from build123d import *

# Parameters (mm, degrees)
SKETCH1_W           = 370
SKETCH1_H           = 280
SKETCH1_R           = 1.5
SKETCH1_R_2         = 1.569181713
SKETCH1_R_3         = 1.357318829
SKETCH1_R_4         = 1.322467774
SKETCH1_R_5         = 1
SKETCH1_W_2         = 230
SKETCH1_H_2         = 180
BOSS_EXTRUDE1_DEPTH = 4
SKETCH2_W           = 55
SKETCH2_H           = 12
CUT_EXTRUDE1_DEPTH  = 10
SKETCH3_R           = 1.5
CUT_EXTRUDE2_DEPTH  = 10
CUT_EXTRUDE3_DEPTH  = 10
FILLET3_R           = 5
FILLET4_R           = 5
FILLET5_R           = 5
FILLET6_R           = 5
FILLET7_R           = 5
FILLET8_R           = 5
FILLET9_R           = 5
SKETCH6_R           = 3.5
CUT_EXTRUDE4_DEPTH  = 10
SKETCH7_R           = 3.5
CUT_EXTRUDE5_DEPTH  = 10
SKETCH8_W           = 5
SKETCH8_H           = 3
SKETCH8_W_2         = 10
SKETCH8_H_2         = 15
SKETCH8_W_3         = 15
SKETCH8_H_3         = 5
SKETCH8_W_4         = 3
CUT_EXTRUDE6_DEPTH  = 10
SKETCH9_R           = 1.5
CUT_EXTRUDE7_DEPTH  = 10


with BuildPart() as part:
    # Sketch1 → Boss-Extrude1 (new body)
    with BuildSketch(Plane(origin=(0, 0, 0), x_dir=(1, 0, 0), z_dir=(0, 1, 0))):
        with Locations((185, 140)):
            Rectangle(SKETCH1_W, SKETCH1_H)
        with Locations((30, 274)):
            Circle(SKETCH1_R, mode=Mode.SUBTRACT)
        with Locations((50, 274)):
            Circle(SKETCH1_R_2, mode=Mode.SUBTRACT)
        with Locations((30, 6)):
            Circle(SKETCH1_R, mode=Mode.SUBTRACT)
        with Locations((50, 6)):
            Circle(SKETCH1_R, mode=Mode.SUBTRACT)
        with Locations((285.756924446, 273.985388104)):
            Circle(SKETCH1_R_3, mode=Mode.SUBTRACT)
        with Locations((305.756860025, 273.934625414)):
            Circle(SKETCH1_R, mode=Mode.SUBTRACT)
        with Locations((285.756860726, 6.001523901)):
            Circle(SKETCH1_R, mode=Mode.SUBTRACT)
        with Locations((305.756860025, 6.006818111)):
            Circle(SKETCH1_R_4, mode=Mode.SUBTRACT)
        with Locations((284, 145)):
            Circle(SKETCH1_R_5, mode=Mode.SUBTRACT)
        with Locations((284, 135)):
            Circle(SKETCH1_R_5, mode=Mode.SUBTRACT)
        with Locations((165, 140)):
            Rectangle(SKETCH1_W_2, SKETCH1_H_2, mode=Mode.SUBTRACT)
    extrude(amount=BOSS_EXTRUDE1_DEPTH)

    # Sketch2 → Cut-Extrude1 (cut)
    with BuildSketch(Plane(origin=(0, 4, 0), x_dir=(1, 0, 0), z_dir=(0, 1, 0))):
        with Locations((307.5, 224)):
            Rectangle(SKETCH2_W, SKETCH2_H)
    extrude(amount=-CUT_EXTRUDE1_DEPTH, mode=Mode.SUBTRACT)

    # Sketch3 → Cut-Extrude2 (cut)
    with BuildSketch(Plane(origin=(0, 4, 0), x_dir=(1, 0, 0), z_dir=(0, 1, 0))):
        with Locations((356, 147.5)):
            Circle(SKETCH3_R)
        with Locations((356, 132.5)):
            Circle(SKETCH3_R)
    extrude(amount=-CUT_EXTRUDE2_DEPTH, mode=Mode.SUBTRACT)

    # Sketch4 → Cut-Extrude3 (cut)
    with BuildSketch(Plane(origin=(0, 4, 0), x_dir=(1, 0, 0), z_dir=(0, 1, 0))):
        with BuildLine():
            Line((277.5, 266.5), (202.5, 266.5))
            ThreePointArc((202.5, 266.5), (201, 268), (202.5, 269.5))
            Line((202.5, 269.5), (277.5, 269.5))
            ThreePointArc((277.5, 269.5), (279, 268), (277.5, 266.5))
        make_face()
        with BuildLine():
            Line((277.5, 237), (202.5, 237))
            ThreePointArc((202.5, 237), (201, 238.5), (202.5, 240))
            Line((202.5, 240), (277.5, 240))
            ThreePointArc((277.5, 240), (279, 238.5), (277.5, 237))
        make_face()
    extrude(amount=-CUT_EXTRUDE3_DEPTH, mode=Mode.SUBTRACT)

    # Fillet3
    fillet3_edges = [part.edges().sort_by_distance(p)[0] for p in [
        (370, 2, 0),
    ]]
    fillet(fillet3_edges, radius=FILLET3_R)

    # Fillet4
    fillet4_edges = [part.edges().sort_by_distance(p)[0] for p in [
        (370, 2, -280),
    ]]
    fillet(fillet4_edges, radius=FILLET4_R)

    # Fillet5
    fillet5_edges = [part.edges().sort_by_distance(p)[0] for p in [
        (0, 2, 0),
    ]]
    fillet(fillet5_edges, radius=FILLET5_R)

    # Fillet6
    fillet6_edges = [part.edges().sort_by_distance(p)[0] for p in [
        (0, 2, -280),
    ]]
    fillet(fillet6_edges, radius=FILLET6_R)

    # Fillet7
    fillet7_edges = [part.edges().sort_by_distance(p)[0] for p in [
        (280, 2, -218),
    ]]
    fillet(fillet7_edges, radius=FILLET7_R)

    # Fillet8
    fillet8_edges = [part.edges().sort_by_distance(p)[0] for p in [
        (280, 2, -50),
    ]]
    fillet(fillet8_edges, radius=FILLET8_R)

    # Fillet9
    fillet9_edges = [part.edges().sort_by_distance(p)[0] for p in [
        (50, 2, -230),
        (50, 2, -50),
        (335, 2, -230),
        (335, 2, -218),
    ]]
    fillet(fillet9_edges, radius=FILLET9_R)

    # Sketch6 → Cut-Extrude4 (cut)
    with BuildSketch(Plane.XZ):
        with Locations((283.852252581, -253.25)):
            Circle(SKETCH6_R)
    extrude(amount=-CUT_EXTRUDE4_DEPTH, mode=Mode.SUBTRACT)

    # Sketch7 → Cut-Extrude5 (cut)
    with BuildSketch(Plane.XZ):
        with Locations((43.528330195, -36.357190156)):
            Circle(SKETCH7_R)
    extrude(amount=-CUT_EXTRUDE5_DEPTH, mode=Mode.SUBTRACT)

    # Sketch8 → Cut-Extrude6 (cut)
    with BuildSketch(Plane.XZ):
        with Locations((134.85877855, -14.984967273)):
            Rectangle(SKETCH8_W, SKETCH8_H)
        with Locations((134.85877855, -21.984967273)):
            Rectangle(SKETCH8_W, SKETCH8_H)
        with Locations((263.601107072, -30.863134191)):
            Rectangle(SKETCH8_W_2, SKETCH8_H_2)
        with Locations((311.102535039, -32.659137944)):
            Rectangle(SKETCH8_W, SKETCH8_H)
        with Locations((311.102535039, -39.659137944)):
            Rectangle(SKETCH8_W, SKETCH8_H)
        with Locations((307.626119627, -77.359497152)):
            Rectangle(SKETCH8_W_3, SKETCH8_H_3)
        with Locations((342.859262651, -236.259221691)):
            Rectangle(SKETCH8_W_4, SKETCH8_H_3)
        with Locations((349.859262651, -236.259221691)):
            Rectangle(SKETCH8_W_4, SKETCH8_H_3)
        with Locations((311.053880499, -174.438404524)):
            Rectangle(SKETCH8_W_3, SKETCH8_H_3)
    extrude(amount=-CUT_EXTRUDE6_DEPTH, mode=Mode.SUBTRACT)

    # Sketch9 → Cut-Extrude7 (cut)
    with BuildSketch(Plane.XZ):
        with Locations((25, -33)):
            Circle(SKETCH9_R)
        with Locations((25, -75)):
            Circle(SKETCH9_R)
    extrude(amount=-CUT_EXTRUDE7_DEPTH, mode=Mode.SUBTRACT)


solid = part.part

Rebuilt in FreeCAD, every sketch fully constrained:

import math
import FreeCAD as App
import Part
import Sketcher
from FreeCAD import Vector
Q = App.Units.Quantity


def edges_at(feature, points):
    """Names of the edges that pass closest to the given points."""
    edges = feature.Shape.Edges
    near = lambda p: min(range(len(edges)), key=lambda i: edges[i].distToShape(Part.Vertex(*p))[0])
    return sorted({f"Edge{near(p) + 1}" for p in points})

doc = App.newDocument("Part")
params = doc.addObject("Spreadsheet::Sheet", "Params")
for row, (alias, value) in enumerate([
    ("sketch1_diameter", "3 mm"),
    ("sketch1_diameter2", "2 mm"),
    ("sketch1_width", "370 mm"),
    ("sketch1_width2", "230 mm"),
    ("sketch1_height", "280 mm"),
    ("pad1_length", "4 mm"),
    ("sketch2_width", "55 mm"),
    ("sketch2_height", "12 mm"),
    ("pocket1_length", "10 mm"),
    ("sketch3_diameter", "3 mm"),
    ("pocket2_length", "10 mm"),
    ("sketch4_radius", "1.5 mm"),
    ("sketch4_width", "75 mm"),
    ("pocket3_length", "10 mm"),
    ("fillet_radius", "5 mm"),
    ("fillet2_radius", "5 mm"),
    ("fillet3_radius", "5 mm"),
    ("fillet4_radius", "5 mm"),
    ("fillet5_radius", "5 mm"),
    ("fillet6_radius", "5 mm"),
    ("fillet7_radius", "5 mm"),
    ("sketch5_diameter", "7 mm"),
    ("pocket4_length", "10 mm"),
    ("sketch6_diameter", "7 mm"),
    ("pocket5_length", "10 mm"),
    ("sketch7_width", "5 mm"),
    ("sketch7_width2", "10 mm"),
    ("sketch7_width3", "15 mm"),
    ("sketch7_width4", "3 mm"),
    ("pocket6_length", "10 mm"),
    ("sketch8_diameter", "3 mm"),
    ("pocket7_length", "10 mm"),
], start=1):
    params.set(f"A{row}", alias)
    params.set(f"B{row}", "=" + value)
    params.setAlias(f"B{row}", alias)

body = doc.addObject("PartDesign::Body", "Body")

sketch1 = body.newObject("Sketcher::SketchObject", "Sketch")
sketch1.AttachmentSupport = (doc.getObject("XZ_Plane"), [""])
sketch1.MapMode = "FlatFace"
sketch1.addGeometry(Part.LineSegment(Vector(0, -280, 0), Vector(0, 0, 0)), False)
sketch1.addGeometry(Part.LineSegment(Vector(0, 0, 0), Vector(370, 0, 0)), False)
sketch1.addGeometry(Part.LineSegment(Vector(370, 0, 0), Vector(370, -280, 0)), False)
sketch1.addGeometry(Part.LineSegment(Vector(370, -280, 0), Vector(0, -280, 0)), False)
sketch1.addGeometry(Part.Circle(Vector(30, -6, 0), Vector(0, 0, 1), 1.5), False)
sketch1.addGeometry(Part.Circle(Vector(50, -6, 0), Vector(0, 0, 1), 1.5), False)
sketch1.addGeometry(Part.LineSegment(Vector(280, -50, 0), Vector(50, -50, 0)), False)
sketch1.addGeometry(Part.LineSegment(Vector(50, -50, 0), Vector(50, -230, 0)), False)
sketch1.addGeometry(Part.LineSegment(Vector(50, -230, 0), Vector(280, -230, 0)), False)
sketch1.addGeometry(Part.LineSegment(Vector(280, -230, 0), Vector(280, -50, 0)), False)
sketch1.addGeometry(Part.Circle(Vector(285.8, -6, 0), Vector(0, 0, 1), 1.5), False)
sketch1.addGeometry(Part.Circle(Vector(305.8, -6, 0), Vector(0, 0, 1), 1.3), False)
sketch1.addGeometry(Part.Circle(Vector(284, -135, 0), Vector(0, 0, 1), 1), False)
sketch1.addGeometry(Part.Circle(Vector(30, -274, 0), Vector(0, 0, 1), 1.5), False)
sketch1.addGeometry(Part.Circle(Vector(50, -274, 0), Vector(0, 0, 1), 1.6), False)
sketch1.addGeometry(Part.Circle(Vector(284, -145, 0), Vector(0, 0, 1), 1), False)
sketch1.addGeometry(Part.Circle(Vector(285.8, -274, 0), Vector(0, 0, 1), 1.4), False)
sketch1.addGeometry(Part.Circle(Vector(305.8, -273.9, 0), Vector(0, 0, 1), 1.5), False)
sketch1.addConstraint(Sketcher.Constraint("Coincident", 0, 2, 1, 1))
sketch1.addConstraint(Sketcher.Constraint("Coincident", 1, 2, 2, 1))
sketch1.addConstraint(Sketcher.Constraint("Coincident", 2, 2, 3, 1))
sketch1.addConstraint(Sketcher.Constraint("Coincident", 3, 2, 0, 1))
sketch1.addConstraint(Sketcher.Constraint("Coincident", 6, 2, 7, 1))
sketch1.addConstraint(Sketcher.Constraint("Coincident", 7, 2, 8, 1))
sketch1.addConstraint(Sketcher.Constraint("Coincident", 8, 2, 9, 1))
sketch1.addConstraint(Sketcher.Constraint("Coincident", 9, 2, 6, 1))
sketch1.addConstraint(Sketcher.Constraint("Vertical", 0))
sketch1.addConstraint(Sketcher.Constraint("Horizontal", 1))
sketch1.addConstraint(Sketcher.Constraint("Vertical", 2))
sketch1.addConstraint(Sketcher.Constraint("Horizontal", 3))
sketch1.addConstraint(Sketcher.Constraint("Horizontal", 6))
sketch1.addConstraint(Sketcher.Constraint("Vertical", 7))
sketch1.addConstraint(Sketcher.Constraint("Horizontal", 8))
sketch1.addConstraint(Sketcher.Constraint("Vertical", 9))
sketch1.addConstraint(Sketcher.Constraint("Coincident", 0, 2, -1, 1))
sketch1.addConstraint(Sketcher.Constraint("Equal", 4, 5))
sketch1.addConstraint(Sketcher.Constraint("Equal", 5, 10))
sketch1.addConstraint(Sketcher.Constraint("Equal", 10, 13))
sketch1.addConstraint(Sketcher.Constraint("Equal", 12, 15))
sketch1.addConstraint(Sketcher.Constraint("Equal", 13, 17))
sketch1.addConstraint(Sketcher.Constraint("Horizontal", 4, 3, 5, 3))
sketch1.addConstraint(Sketcher.Constraint("Horizontal", 13, 3, 14, 3))
sketch1.addConstraint(Sketcher.Constraint("Vertical", 4, 3, 13, 3))
sketch1.addConstraint(Sketcher.Constraint("Vertical", 5, 3, 14, 3))
sketch1.addConstraint(Sketcher.Constraint("Vertical", 12, 3, 15, 3))
sketch1.addConstraint(Sketcher.Constraint("Vertical", 11, 3, 17, 3))
sketch1.addConstraint(Sketcher.Constraint("Vertical", 14, 3, 6, 2))
sketch1.addConstraint(Sketcher.Constraint("Diameter", 4, Q("3 mm")))
sketch1.addConstraint(Sketcher.Constraint("Diameter", 12, Q("2 mm")))
sketch1.addConstraint(Sketcher.Constraint("DistanceX", 1, 1, 1, 2, Q("370 mm")))
sketch1.addConstraint(Sketcher.Constraint("DistanceX", 6, 2, 6, 1, Q("230 mm")))
sketch1.addConstraint(Sketcher.Constraint("DistanceY", 0, 1, 0, 2, Q("280 mm")))
sketch1.addConstraint(Sketcher.Constraint("DistanceY", 7, 2, 7, 1, Q("180 mm")))
sketch1.addConstraint(Sketcher.Constraint("DistanceX", -1, 1, 4, 3, Q("30 mm")))
sketch1.addConstraint(Sketcher.Constraint("DistanceY", 4, 3, -1, 1, Q("6 mm")))
sketch1.addConstraint(Sketcher.Constraint("DistanceX", -1, 1, 5, 3, Q("50 mm")))
sketch1.addConstraint(Sketcher.Constraint("DistanceX", -1, 1, 12, 3, Q("284 mm")))
sketch1.addConstraint(Sketcher.Constraint("DistanceY", 12, 3, -1, 1, Q("135 mm")))
sketch1.addConstraint(Sketcher.Constraint("DistanceY", 13, 3, -1, 1, Q("274 mm")))
sketch1.addConstraint(Sketcher.Constraint("DistanceY", 15, 3, -1, 1, Q("145 mm")))
sketch1.addConstraint(Sketcher.Constraint("DistanceY", 6, 2, -1, 1, Q("50 mm")))
sketch1.addConstraint(Sketcher.Constraint("DistanceX", 10, 3, 11, 3, Q("19.999999 mm")))
sketch1.addConstraint(Sketcher.Constraint("Diameter", 11, Q("2.644936 mm")))
sketch1.addConstraint(Sketcher.Constraint("Diameter", 14, Q("3.138363 mm")))
sketch1.addConstraint(Sketcher.Constraint("Diameter", 16, Q("2.714638 mm")))
sketch1.addConstraint(Sketcher.Constraint("DistanceX", -1, 1, 10, 3, Q("285.756861 mm")))
sketch1.addConstraint(Sketcher.Constraint("DistanceY", 11, 3, -1, 1, Q("6.006818 mm")))
sketch1.addConstraint(Sketcher.Constraint("DistanceY", 16, 3, -1, 1, Q("273.985388 mm")))
sketch1.addConstraint(Sketcher.Constraint("DistanceY", 10, 3, -1, 1, Q("6.001524 mm")))
sketch1.addConstraint(Sketcher.Constraint("DistanceX", -1, 1, 16, 3, Q("285.756924 mm")))
sketch1.addConstraint(Sketcher.Constraint("DistanceY", 17, 3, -1, 1, Q("273.934625 mm")))
sketch1.setExpression("Constraints[29]", "Params.sketch1_diameter")
sketch1.setExpression("Constraints[30]", "Params.sketch1_diameter2")
sketch1.setExpression("Constraints[31]", "Params.sketch1_width")
sketch1.setExpression("Constraints[32]", "Params.sketch1_width2")
sketch1.setExpression("Constraints[33]", "Params.sketch1_height")
pad1 = body.newObject("PartDesign::Pad", "Pad")
pad1.Profile = sketch1
pad1.setExpression("Length", "Params.pad1_length")
pad1.Reversed = True

sketch2 = body.newObject("Sketcher::SketchObject", "Sketch001")
sketch2.AttachmentSupport = (doc.getObject("XZ_Plane"), [""])
sketch2.MapMode = "FlatFace"
sketch2.AttachmentOffset = App.Placement(Vector(0, 0, -4), App.Rotation())
sketch2.addGeometry(Part.LineSegment(Vector(280, -230, 0), Vector(280, -218, 0)), False)
sketch2.addGeometry(Part.LineSegment(Vector(280, -218, 0), Vector(335, -218, 0)), False)
sketch2.addGeometry(Part.LineSegment(Vector(335, -218, 0), Vector(335, -230, 0)), False)
sketch2.addGeometry(Part.LineSegment(Vector(335, -230, 0), Vector(280, -230, 0)), False)
sketch2.addConstraint(Sketcher.Constraint("Coincident", 0, 2, 1, 1))
sketch2.addConstraint(Sketcher.Constraint("Coincident", 1, 2, 2, 1))
sketch2.addConstraint(Sketcher.Constraint("Coincident", 2, 2, 3, 1))
sketch2.addConstraint(Sketcher.Constraint("Coincident", 3, 2, 0, 1))
sketch2.addConstraint(Sketcher.Constraint("Vertical", 0))
sketch2.addConstraint(Sketcher.Constraint("Horizontal", 1))
sketch2.addConstraint(Sketcher.Constraint("Vertical", 2))
sketch2.addConstraint(Sketcher.Constraint("Horizontal", 3))
sketch2.addConstraint(Sketcher.Constraint("DistanceX", 1, 1, 1, 2, Q("55 mm")))
sketch2.addConstraint(Sketcher.Constraint("DistanceY", 0, 1, 0, 2, Q("12 mm")))
sketch2.addConstraint(Sketcher.Constraint("DistanceX", -1, 1, 0, 2, Q("280 mm")))
sketch2.addConstraint(Sketcher.Constraint("DistanceY", 0, 2, -1, 1, Q("218 mm")))
sketch2.setExpression("Constraints[8]", "Params.sketch2_width")
sketch2.setExpression("Constraints[9]", "Params.sketch2_height")
pocket1 = body.newObject("PartDesign::Pocket", "Pocket")
pocket1.Profile = sketch2
pocket1.setExpression("Length", "Params.pocket1_length")
pocket1.Reversed = True

sketch3 = body.newObject("Sketcher::SketchObject", "Sketch002")
sketch3.AttachmentSupport = (doc.getObject("XZ_Plane"), [""])
sketch3.MapMode = "FlatFace"
sketch3.AttachmentOffset = App.Placement(Vector(0, 0, -4), App.Rotation())
sketch3.addGeometry(Part.Circle(Vector(356, -147.5, 0), Vector(0, 0, 1), 1.5), False)
sketch3.addGeometry(Part.Circle(Vector(356, -132.5, 0), Vector(0, 0, 1), 1.5), False)
sketch3.addConstraint(Sketcher.Constraint("Equal", 0, 1))
sketch3.addConstraint(Sketcher.Constraint("Vertical", 0, 3, 1, 3))
sketch3.addConstraint(Sketcher.Constraint("Diameter", 0, Q("3 mm")))
sketch3.addConstraint(Sketcher.Constraint("DistanceX", -1, 1, 0, 3, Q("356 mm")))
sketch3.addConstraint(Sketcher.Constraint("DistanceY", 0, 3, 1, 3, Q("15 mm")))
sketch3.addConstraint(Sketcher.Constraint("DistanceY", 0, 3, -1, 1, Q("147.5 mm")))
sketch3.setExpression("Constraints[2]", "Params.sketch3_diameter")
pocket2 = body.newObject("PartDesign::Pocket", "Pocket001")
pocket2.Profile = sketch3
pocket2.setExpression("Length", "Params.pocket2_length")
pocket2.Reversed = True

sketch4 = body.newObject("Sketcher::SketchObject", "Sketch003")
sketch4.AttachmentSupport = (doc.getObject("XZ_Plane"), [""])
sketch4.MapMode = "FlatFace"
sketch4.AttachmentOffset = App.Placement(Vector(0, 0, -4), App.Rotation())
sketch4.addGeometry(Part.LineSegment(Vector(202.5, -266.5, 0), Vector(277.5, -266.5, 0)), False)
sketch4.addGeometry(Part.ArcOfCircle(Part.Circle(Vector(277.5, -268, 0), Vector(0, 0, 1), 1.5), math.radians(-90), math.radians(90)), False)
sketch4.addGeometry(Part.LineSegment(Vector(277.5, -269.5, 0), Vector(202.5, -269.5, 0)), False)
sketch4.addGeometry(Part.ArcOfCircle(Part.Circle(Vector(202.5, -268, 0), Vector(0, 0, 1), 1.5), math.radians(90), math.radians(270)), False)
sketch4.addGeometry(Part.LineSegment(Vector(202.5, -237, 0), Vector(277.5, -237, 0)), False)
sketch4.addGeometry(Part.ArcOfCircle(Part.Circle(Vector(277.5, -238.5, 0), Vector(0, 0, 1), 1.5), math.radians(-90), math.radians(90)), False)
sketch4.addGeometry(Part.LineSegment(Vector(277.5, -240, 0), Vector(202.5, -240, 0)), False)
sketch4.addGeometry(Part.ArcOfCircle(Part.Circle(Vector(202.5, -238.5, 0), Vector(0, 0, 1), 1.5), math.radians(90), math.radians(270)), False)
sketch4.addConstraint(Sketcher.Constraint("Tangent", 0, 2, 1, 2))
sketch4.addConstraint(Sketcher.Constraint("Tangent", 1, 1, 2, 1))
sketch4.addConstraint(Sketcher.Constraint("Tangent", 2, 2, 3, 2))
sketch4.addConstraint(Sketcher.Constraint("Tangent", 3, 1, 0, 1))
sketch4.addConstraint(Sketcher.Constraint("Tangent", 4, 2, 5, 2))
sketch4.addConstraint(Sketcher.Constraint("Tangent", 5, 1, 6, 1))
sketch4.addConstraint(Sketcher.Constraint("Tangent", 6, 2, 7, 2))
sketch4.addConstraint(Sketcher.Constraint("Tangent", 7, 1, 4, 1))
sketch4.addConstraint(Sketcher.Constraint("Horizontal", 0))
sketch4.addConstraint(Sketcher.Constraint("Horizontal", 2))
sketch4.addConstraint(Sketcher.Constraint("Horizontal", 4))
sketch4.addConstraint(Sketcher.Constraint("Horizontal", 6))
sketch4.addConstraint(Sketcher.Constraint("Equal", 3, 5))
sketch4.addConstraint(Sketcher.Constraint("Vertical", 1, 3, 5, 3))
sketch4.addConstraint(Sketcher.Constraint("Vertical", 3, 3, 7, 3))
sketch4.addConstraint(Sketcher.Constraint("Radius", 1, Q("1.5 mm")))
sketch4.addConstraint(Sketcher.Constraint("DistanceX", 0, 1, 0, 2, Q("75 mm")))
sketch4.addConstraint(Sketcher.Constraint("DistanceY", 1, 3, -1, 1, Q("268 mm")))
sketch4.addConstraint(Sketcher.Constraint("DistanceY", 4, 2, -1, 1, Q("237 mm")))
sketch4.addConstraint(Sketcher.Constraint("DistanceX", -1, 1, 1, 3, Q("277.5 mm")))
sketch4.setExpression("Constraints[15]", "Params.sketch4_radius")
sketch4.setExpression("Constraints[16]", "Params.sketch4_width")
pocket3 = body.newObject("PartDesign::Pocket", "Pocket002")
pocket3.Profile = sketch4
pocket3.setExpression("Length", "Params.pocket3_length")
pocket3.Reversed = True
doc.recompute()

fillet = body.newObject("PartDesign::Fillet", "Fillet")
fillet.Base = (pocket3, edges_at(pocket3, [(370, 2, 0)]))
fillet.setExpression("Radius", "Params.fillet_radius")
doc.recompute()

fillet2 = body.newObject("PartDesign::Fillet", "Fillet001")
fillet2.Base = (fillet, edges_at(fillet, [(370, 2, -280)]))
fillet2.setExpression("Radius", "Params.fillet2_radius")
doc.recompute()

fillet3 = body.newObject("PartDesign::Fillet", "Fillet002")
fillet3.Base = (fillet2, edges_at(fillet2, [(0, 2, 0)]))
fillet3.setExpression("Radius", "Params.fillet3_radius")
doc.recompute()

fillet4 = body.newObject("PartDesign::Fillet", "Fillet003")
fillet4.Base = (fillet3, edges_at(fillet3, [(0, 2, -280)]))
fillet4.setExpression("Radius", "Params.fillet4_radius")
doc.recompute()

fillet5 = body.newObject("PartDesign::Fillet", "Fillet004")
fillet5.Base = (fillet4, edges_at(fillet4, [(280, 2, -218)]))
fillet5.setExpression("Radius", "Params.fillet5_radius")
doc.recompute()

fillet6 = body.newObject("PartDesign::Fillet", "Fillet005")
fillet6.Base = (fillet5, edges_at(fillet5, [(280, 2, -50)]))
fillet6.setExpression("Radius", "Params.fillet6_radius")
doc.recompute()

fillet7 = body.newObject("PartDesign::Fillet", "Fillet006")
fillet7.Base = (fillet6, edges_at(fillet6, [
    (50, 2, -230),
    (50, 2, -50),
    (335, 2, -230),
    (335, 2, -218),
]))
fillet7.setExpression("Radius", "Params.fillet7_radius")

sketch5 = body.newObject("Sketcher::SketchObject", "Sketch004")
sketch5.AttachmentSupport = (doc.getObject("XZ_Plane"), [""])
sketch5.MapMode = "FlatFace"
sketch5.addGeometry(Part.Circle(Vector(283.9, -253.2, 0), Vector(0, 0, 1), 3.5), False)
sketch5.addConstraint(Sketcher.Constraint("Diameter", 0, Q("7 mm")))
sketch5.addConstraint(Sketcher.Constraint("DistanceY", 0, 3, -1, 1, Q("253.25 mm")))
sketch5.addConstraint(Sketcher.Constraint("DistanceX", -1, 1, 0, 3, Q("283.852253 mm")))
sketch5.setExpression("Constraints[0]", "Params.sketch5_diameter")
pocket4 = body.newObject("PartDesign::Pocket", "Pocket003")
pocket4.Profile = sketch5
pocket4.setExpression("Length", "Params.pocket4_length")

sketch6 = body.newObject("Sketcher::SketchObject", "Sketch005")
sketch6.AttachmentSupport = (doc.getObject("XZ_Plane"), [""])
sketch6.MapMode = "FlatFace"
sketch6.addGeometry(Part.Circle(Vector(43.5, -36.4, 0), Vector(0, 0, 1), 3.5), False)
sketch6.addConstraint(Sketcher.Constraint("Diameter", 0, Q("7 mm")))
sketch6.addConstraint(Sketcher.Constraint("DistanceX", -1, 1, 0, 3, Q("43.52833 mm")))
sketch6.addConstraint(Sketcher.Constraint("DistanceY", 0, 3, -1, 1, Q("36.35719 mm")))
sketch6.setExpression("Constraints[0]", "Params.sketch6_diameter")
pocket5 = body.newObject("PartDesign::Pocket", "Pocket004")
pocket5.Profile = sketch6
pocket5.setExpression("Length", "Params.pocket5_length")

sketch7 = body.newObject("Sketcher::SketchObject", "Sketch006")
sketch7.AttachmentSupport = (doc.getObject("XZ_Plane"), [""])
sketch7.MapMode = "FlatFace"
sketch7.addGeometry(Part.LineSegment(Vector(132.4, -13.5, 0), Vector(132.4, -16.5, 0)), False)
sketch7.addGeometry(Part.LineSegment(Vector(132.4, -16.5, 0), Vector(137.4, -16.5, 0)), False)
sketch7.addGeometry(Part.LineSegment(Vector(137.4, -16.5, 0), Vector(137.4, -13.5, 0)), False)
sketch7.addGeometry(Part.LineSegment(Vector(137.4, -13.5, 0), Vector(132.4, -13.5, 0)), False)
sketch7.addGeometry(Part.LineSegment(Vector(132.4, -20.5, 0), Vector(132.4, -23.5, 0)), False)
sketch7.addGeometry(Part.LineSegment(Vector(132.4, -23.5, 0), Vector(137.4, -23.5, 0)), False)
sketch7.addGeometry(Part.LineSegment(Vector(137.4, -23.5, 0), Vector(137.4, -20.5, 0)), False)
sketch7.addGeometry(Part.LineSegment(Vector(137.4, -20.5, 0), Vector(132.4, -20.5, 0)), False)
sketch7.addGeometry(Part.LineSegment(Vector(258.6, -23.4, 0), Vector(258.6, -38.4, 0)), False)
sketch7.addGeometry(Part.LineSegment(Vector(258.6, -38.4, 0), Vector(268.6, -38.4, 0)), False)
sketch7.addGeometry(Part.LineSegment(Vector(268.6, -38.4, 0), Vector(268.6, -23.4, 0)), False)
sketch7.addGeometry(Part.LineSegment(Vector(268.6, -23.4, 0), Vector(258.6, -23.4, 0)), False)
sketch7.addGeometry(Part.LineSegment(Vector(308.6, -31.2, 0), Vector(308.6, -34.2, 0)), False)
sketch7.addGeometry(Part.LineSegment(Vector(308.6, -34.2, 0), Vector(313.6, -34.2, 0)), False)
sketch7.addGeometry(Part.LineSegment(Vector(313.6, -34.2, 0), Vector(313.6, -31.2, 0)), False)
sketch7.addGeometry(Part.LineSegment(Vector(313.6, -31.2, 0), Vector(308.6, -31.2, 0)), False)
sketch7.addGeometry(Part.LineSegment(Vector(308.6, -38.2, 0), Vector(308.6, -41.2, 0)), False)
sketch7.addGeometry(Part.LineSegment(Vector(308.6, -41.2, 0), Vector(313.6, -41.2, 0)), False)
sketch7.addGeometry(Part.LineSegment(Vector(313.6, -41.2, 0), Vector(313.6, -38.2, 0)), False)
sketch7.addGeometry(Part.LineSegment(Vector(313.6, -38.2, 0), Vector(308.6, -38.2, 0)), False)
sketch7.addGeometry(Part.LineSegment(Vector(300.1, -74.9, 0), Vector(300.1, -79.9, 0)), False)
sketch7.addGeometry(Part.LineSegment(Vector(300.1, -79.9, 0), Vector(315.1, -79.9, 0)), False)
sketch7.addGeometry(Part.LineSegment(Vector(315.1, -79.9, 0), Vector(315.1, -74.9, 0)), False)
sketch7.addGeometry(Part.LineSegment(Vector(315.1, -74.9, 0), Vector(300.1, -74.9, 0)), False)
sketch7.addGeometry(Part.LineSegment(Vector(341.4, -233.8, 0), Vector(341.4, -238.8, 0)), False)
sketch7.addGeometry(Part.LineSegment(Vector(341.4, -238.8, 0), Vector(344.4, -238.8, 0)), False)
sketch7.addGeometry(Part.LineSegment(Vector(344.4, -238.8, 0), Vector(344.4, -233.8, 0)), False)
sketch7.addGeometry(Part.LineSegment(Vector(344.4, -233.8, 0), Vector(341.4, -233.8, 0)), False)
sketch7.addGeometry(Part.LineSegment(Vector(348.4, -233.8, 0), Vector(348.4, -238.8, 0)), False)
sketch7.addGeometry(Part.LineSegment(Vector(348.4, -238.8, 0), Vector(351.4, -238.8, 0)), False)
sketch7.addGeometry(Part.LineSegment(Vector(351.4, -238.8, 0), Vector(351.4, -233.8, 0)), False)
sketch7.addGeometry(Part.LineSegment(Vector(351.4, -233.8, 0), Vector(348.4, -233.8, 0)), False)
sketch7.addGeometry(Part.LineSegment(Vector(303.6, -171.9, 0), Vector(303.6, -176.9, 0)), False)
sketch7.addGeometry(Part.LineSegment(Vector(303.6, -176.9, 0), Vector(318.6, -176.9, 0)), False)
sketch7.addGeometry(Part.LineSegment(Vector(318.6, -176.9, 0), Vector(318.6, -171.9, 0)), False)
sketch7.addGeometry(Part.LineSegment(Vector(318.6, -171.9, 0), Vector(303.6, -171.9, 0)), False)
sketch7.addConstraint(Sketcher.Constraint("Coincident", 0, 2, 1, 1))
sketch7.addConstraint(Sketcher.Constraint("Coincident", 1, 2, 2, 1))
sketch7.addConstraint(Sketcher.Constraint("Coincident", 2, 2, 3, 1))
sketch7.addConstraint(Sketcher.Constraint("Coincident", 3, 2, 0, 1))
sketch7.addConstraint(Sketcher.Constraint("Coincident", 4, 2, 5, 1))
sketch7.addConstraint(Sketcher.Constraint("Coincident", 5, 2, 6, 1))
sketch7.addConstraint(Sketcher.Constraint("Coincident", 6, 2, 7, 1))
sketch7.addConstraint(Sketcher.Constraint("Coincident", 7, 2, 4, 1))
sketch7.addConstraint(Sketcher.Constraint("Coincident", 8, 2, 9, 1))
sketch7.addConstraint(Sketcher.Constraint("Coincident", 9, 2, 10, 1))
sketch7.addConstraint(Sketcher.Constraint("Coincident", 10, 2, 11, 1))
sketch7.addConstraint(Sketcher.Constraint("Coincident", 11, 2, 8, 1))
sketch7.addConstraint(Sketcher.Constraint("Coincident", 12, 2, 13, 1))
sketch7.addConstraint(Sketcher.Constraint("Coincident", 13, 2, 14, 1))
sketch7.addConstraint(Sketcher.Constraint("Coincident", 14, 2, 15, 1))
sketch7.addConstraint(Sketcher.Constraint("Coincident", 15, 2, 12, 1))
sketch7.addConstraint(Sketcher.Constraint("Coincident", 16, 2, 17, 1))
sketch7.addConstraint(Sketcher.Constraint("Coincident", 17, 2, 18, 1))
sketch7.addConstraint(Sketcher.Constraint("Coincident", 18, 2, 19, 1))
sketch7.addConstraint(Sketcher.Constraint("Coincident", 19, 2, 16, 1))
sketch7.addConstraint(Sketcher.Constraint("Coincident", 20, 2, 21, 1))
sketch7.addConstraint(Sketcher.Constraint("Coincident", 21, 2, 22, 1))
sketch7.addConstraint(Sketcher.Constraint("Coincident", 22, 2, 23, 1))
sketch7.addConstraint(Sketcher.Constraint("Coincident", 23, 2, 20, 1))
sketch7.addConstraint(Sketcher.Constraint("Coincident", 24, 2, 25, 1))
sketch7.addConstraint(Sketcher.Constraint("Coincident", 25, 2, 26, 1))
sketch7.addConstraint(Sketcher.Constraint("Coincident", 26, 2, 27, 1))
sketch7.addConstraint(Sketcher.Constraint("Coincident", 27, 2, 24, 1))
sketch7.addConstraint(Sketcher.Constraint("Coincident", 28, 2, 29, 1))
sketch7.addConstraint(Sketcher.Constraint("Coincident", 29, 2, 30, 1))
sketch7.addConstraint(Sketcher.Constraint("Coincident", 30, 2, 31, 1))
sketch7.addConstraint(Sketcher.Constraint("Coincident", 31, 2, 28, 1))
sketch7.addConstraint(Sketcher.Constraint("Coincident", 32, 2, 33, 1))
sketch7.addConstraint(Sketcher.Constraint("Coincident", 33, 2, 34, 1))
sketch7.addConstraint(Sketcher.Constraint("Coincident", 34, 2, 35, 1))
sketch7.addConstraint(Sketcher.Constraint("Coincident", 35, 2, 32, 1))
sketch7.addConstraint(Sketcher.Constraint("Vertical", 0))
sketch7.addConstraint(Sketcher.Constraint("Horizontal", 1))
sketch7.addConstraint(Sketcher.Constraint("Vertical", 2))
sketch7.addConstraint(Sketcher.Constraint("Horizontal", 3))
sketch7.addConstraint(Sketcher.Constraint("Vertical", 4))
sketch7.addConstraint(Sketcher.Constraint("Horizontal", 5))
sketch7.addConstraint(Sketcher.Constraint("Vertical", 6))
sketch7.addConstraint(Sketcher.Constraint("Horizontal", 7))
sketch7.addConstraint(Sketcher.Constraint("Vertical", 8))
sketch7.addConstraint(Sketcher.Constraint("Horizontal", 9))
sketch7.addConstraint(Sketcher.Constraint("Vertical", 10))
sketch7.addConstraint(Sketcher.Constraint("Horizontal", 11))
sketch7.addConstraint(Sketcher.Constraint("Vertical", 12))
sketch7.addConstraint(Sketcher.Constraint("Horizontal", 13))
sketch7.addConstraint(Sketcher.Constraint("Vertical", 14))
sketch7.addConstraint(Sketcher.Constraint("Horizontal", 15))
sketch7.addConstraint(Sketcher.Constraint("Vertical", 16))
sketch7.addConstraint(Sketcher.Constraint("Horizontal", 17))
sketch7.addConstraint(Sketcher.Constraint("Vertical", 18))
sketch7.addConstraint(Sketcher.Constraint("Horizontal", 19))
sketch7.addConstraint(Sketcher.Constraint("Vertical", 20))
sketch7.addConstraint(Sketcher.Constraint("Horizontal", 21))
sketch7.addConstraint(Sketcher.Constraint("Vertical", 22))
sketch7.addConstraint(Sketcher.Constraint("Horizontal", 23))
sketch7.addConstraint(Sketcher.Constraint("Vertical", 24))
sketch7.addConstraint(Sketcher.Constraint("Horizontal", 25))
sketch7.addConstraint(Sketcher.Constraint("Vertical", 26))
sketch7.addConstraint(Sketcher.Constraint("Horizontal", 27))
sketch7.addConstraint(Sketcher.Constraint("Vertical", 28))
sketch7.addConstraint(Sketcher.Constraint("Horizontal", 29))
sketch7.addConstraint(Sketcher.Constraint("Vertical", 30))
sketch7.addConstraint(Sketcher.Constraint("Horizontal", 31))
sketch7.addConstraint(Sketcher.Constraint("Vertical", 32))
sketch7.addConstraint(Sketcher.Constraint("Horizontal", 33))
sketch7.addConstraint(Sketcher.Constraint("Vertical", 34))
sketch7.addConstraint(Sketcher.Constraint("Horizontal", 35))
sketch7.addConstraint(Sketcher.Constraint("Horizontal", 25, 2, 28, 2))
sketch7.addConstraint(Sketcher.Constraint("Horizontal", 27, 2, 30, 2))
sketch7.addConstraint(Sketcher.Constraint("Vertical", 3, 2, 4, 2))
sketch7.addConstraint(Sketcher.Constraint("Vertical", 2, 2, 5, 2))
sketch7.addConstraint(Sketcher.Constraint("Vertical", 15, 2, 16, 2))
sketch7.addConstraint(Sketcher.Constraint("Vertical", 14, 2, 17, 2))
sketch7.addConstraint(Sketcher.Constraint("Equal", 7, 13))
sketch7.addConstraint(Sketcher.Constraint("Equal", 27, 29))
sketch7.addConstraint(Sketcher.Constraint("Equal", 23, 33))
sketch7.addConstraint(Sketcher.Constraint("Equal", 31, 0))
sketch7.addConstraint(Sketcher.Constraint("Equal", 2, 4))
sketch7.addConstraint(Sketcher.Constraint("Equal", 35, 8))
sketch7.addConstraint(Sketcher.Constraint("Equal", 6, 12))
sketch7.addConstraint(Sketcher.Constraint("Equal", 14, 16))
sketch7.addConstraint(Sketcher.Constraint("Equal", 19, 20))
sketch7.addConstraint(Sketcher.Constraint("Equal", 22, 24))
sketch7.addConstraint(Sketcher.Constraint("Equal", 30, 32))
sketch7.addConstraint(Sketcher.Constraint("DistanceX", 1, 1, 1, 2, Q("5 mm")))
sketch7.addConstraint(Sketcher.Constraint("DistanceX", 9, 1, 9, 2, Q("10 mm")))
sketch7.addConstraint(Sketcher.Constraint("DistanceX", 21, 1, 21, 2, Q("15 mm")))
sketch7.addConstraint(Sketcher.Constraint("DistanceX", 25, 1, 25, 2, Q("3 mm")))
sketch7.addConstraint(Sketcher.Constraint("DistanceY", 4, 2, 0, 2, Q("7 mm")))
sketch7.addConstraint(Sketcher.Constraint("DistanceY", 16, 2, 12, 2, Q("7 mm")))
sketch7.addConstraint(Sketcher.Constraint("DistanceX", 25, 2, 28, 2, Q("4 mm")))
sketch7.addConstraint(Sketcher.Constraint("DistanceX", -1, 1, 0, 2, Q("132.358779 mm")))
sketch7.addConstraint(Sketcher.Constraint("DistanceX", -1, 1, 20, 2, Q("300.12612 mm")))
sketch7.addConstraint(Sketcher.Constraint("DistanceY", 24, 2, -1, 1, Q("238.759222 mm")))
sketch7.addConstraint(Sketcher.Constraint("DistanceX", -1, 1, 32, 2, Q("303.55388 mm")))
sketch7.addConstraint(Sketcher.Constraint("DistanceX", 5, 2, 8, 2, Q("121.242329 mm")))
sketch7.addConstraint(Sketcher.Constraint("DistanceY", 12, 2, 5, 2, Q("10.674171 mm")))
sketch7.addConstraint(Sketcher.Constraint("DistanceY", 20, 2, 16, 2, Q("38.700359 mm")))
sketch7.addConstraint(Sketcher.Constraint("DistanceY", 0, 2, -1, 1, Q("16.484967 mm")))
sketch7.addConstraint(Sketcher.Constraint("DistanceY", 8, 2, -1, 1, Q("38.363134 mm")))
sketch7.addConstraint(Sketcher.Constraint("DistanceX", -1, 1, 12, 2, Q("308.602535 mm")))
sketch7.addConstraint(Sketcher.Constraint("DistanceX", -1, 1, 24, 2, Q("341.359263 mm")))
sketch7.addConstraint(Sketcher.Constraint("DistanceY", 32, 2, -1, 1, Q("176.938405 mm")))
sketch7.setExpression("Constraints[89]", "Params.sketch7_width")
sketch7.setExpression("Constraints[90]", "Params.sketch7_width2")
sketch7.setExpression("Constraints[91]", "Params.sketch7_width3")
sketch7.setExpression("Constraints[92]", "Params.sketch7_width4")
pocket6 = body.newObject("PartDesign::Pocket", "Pocket005")
pocket6.Profile = sketch7
pocket6.setExpression("Length", "Params.pocket6_length")

sketch8 = body.newObject("Sketcher::SketchObject", "Sketch007")
sketch8.AttachmentSupport = (doc.getObject("XZ_Plane"), [""])
sketch8.MapMode = "FlatFace"
sketch8.addGeometry(Part.Circle(Vector(25, -33, 0), Vector(0, 0, 1), 1.5), False)
sketch8.addGeometry(Part.Circle(Vector(25, -75, 0), Vector(0, 0, 1), 1.5), False)
sketch8.addConstraint(Sketcher.Constraint("Equal", 0, 1))
sketch8.addConstraint(Sketcher.Constraint("Vertical", 0, 3, 1, 3))
sketch8.addConstraint(Sketcher.Constraint("Diameter", 0, Q("3 mm")))
sketch8.addConstraint(Sketcher.Constraint("DistanceX", -1, 1, 0, 3, Q("25 mm")))
sketch8.addConstraint(Sketcher.Constraint("DistanceY", 0, 3, -1, 1, Q("33 mm")))
sketch8.addConstraint(Sketcher.Constraint("DistanceY", 1, 3, -1, 1, Q("75 mm")))
sketch8.setExpression("Constraints[2]", "Params.sketch8_diameter")
pocket7 = body.newObject("PartDesign::Pocket", "Pocket006")
pocket7.Profile = sketch8
pocket7.setExpression("Length", "Params.pocket7_length")

doc.recompute()
